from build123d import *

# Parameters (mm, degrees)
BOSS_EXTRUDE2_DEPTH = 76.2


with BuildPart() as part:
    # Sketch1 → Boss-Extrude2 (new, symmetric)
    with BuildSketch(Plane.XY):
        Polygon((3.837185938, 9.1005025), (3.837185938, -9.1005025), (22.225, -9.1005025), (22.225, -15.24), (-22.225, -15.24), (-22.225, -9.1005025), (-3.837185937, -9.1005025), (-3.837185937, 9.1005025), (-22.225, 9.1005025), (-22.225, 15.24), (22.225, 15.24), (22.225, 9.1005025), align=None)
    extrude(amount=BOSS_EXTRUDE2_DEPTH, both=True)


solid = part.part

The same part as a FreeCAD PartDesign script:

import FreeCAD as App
import Part
import Sketcher

V = App.Vector
Q = App.Units.Quantity

doc = App.newDocument("Part")
body = doc.addObject("PartDesign::Body", "Body")

# Sketch on XY plane
sketch1 = body.newObject("Sketcher::SketchObject", "Sketch")
sketch1.AttachmentSupport = (doc.getObject("XY_Plane"), [""])
sketch1.MapMode = "FlatFace"
sketch1.addGeometry([
    Part.LineSegment(V(3.837186, -9.100502, 0), V(3.837186, 9.100502, 0)),  # 0
    Part.LineSegment(V(3.837186, 9.100502, 0), V(22.225, 9.100502, 0)),  # 1
    Part.LineSegment(V(22.225, 9.100502, 0), V(22.225, 15.24, 0)),  # 2
    Part.LineSegment(V(22.225, 15.24, 0), V(-22.225, 15.24, 0)),  # 3
    Part.LineSegment(V(-22.225, 15.24, 0), V(-22.225, 9.100502, 0)),  # 4
    Part.LineSegment(V(-22.225, 9.100502, 0), V(-3.837186, 9.100502, 0)),  # 5
    Part.LineSegment(V(-3.837186, 9.100502, 0), V(-3.837186, -9.100502, 0)),  # 6
    Part.LineSegment(V(-3.837186, -9.100502, 0), V(-22.225, -9.100502, 0)),  # 7
    Part.LineSegment(V(-22.225, -9.100502, 0), V(-22.225, -15.24, 0)),  # 8
    Part.LineSegment(V(-22.225, -15.24, 0), V(22.225, -15.24, 0)),  # 9
    Part.LineSegment(V(22.225, -15.24, 0), V(22.225, -9.100502, 0)),  # 10
    Part.LineSegment(V(22.225, -9.100502, 0), V(3.837186, -9.100502, 0)),  # 11
], False)
sketch1.addConstraint([
    Sketcher.Constraint("Coincident", 0, 2, 1, 1),
    Sketcher.Constraint("Coincident", 1, 2, 2, 1),
    Sketcher.Constraint("Coincident", 2, 2, 3, 1),
    Sketcher.Constraint("Coincident", 3, 2, 4, 1),
    Sketcher.Constraint("Coincident", 4, 2, 5, 1),
    Sketcher.Constraint("Coincident", 5, 2, 6, 1),
    Sketcher.Constraint("Coincident", 6, 2, 7, 1),
    Sketcher.Constraint("Coincident", 7, 2, 8, 1),
    Sketcher.Constraint("Coincident", 8, 2, 9, 1),
    Sketcher.Constraint("Coincident", 9, 2, 10, 1),
    Sketcher.Constraint("Coincident", 10, 2, 11, 1),
    Sketcher.Constraint("Coincident", 11, 2, 0, 1),
    Sketcher.Constraint("Vertical", 0),
    Sketcher.Constraint("Horizontal", 1),
    Sketcher.Constraint("Vertical", 2),
    Sketcher.Constraint("Horizontal", 3),
    Sketcher.Constraint("Vertical", 4),
    Sketcher.Constraint("Horizontal", 5),
    Sketcher.Constraint("Vertical", 6),
    Sketcher.Constraint("Horizontal", 7),
    Sketcher.Constraint("Vertical", 8),
    Sketcher.Constraint("Horizontal", 9),
    Sketcher.Constraint("Vertical", 10),
    Sketcher.Constraint("Horizontal", 11),
    Sketcher.Constraint("Symmetric", 0, 2, 6, 2, -1, 1),
    Sketcher.Constraint("Symmetric", 2, 2, 8, 2, -1, 1),
    Sketcher.Constraint("Symmetric", 4, 2, 10, 2, -1, 1),
    Sketcher.Constraint("Symmetric", 1, 2, 4, 2, -2),
    Sketcher.Constraint("DistanceX", 3, 2, 3, 1, Q("1.75 in")),
    Sketcher.Constraint("DistanceY", -1, 1, 2, 2, Q("0.6 in")),
    Sketcher.Constraint("DistanceX", 1, 1, 1, 2, 18.387814),
    Sketcher.Constraint("DistanceY", 0, 1, 0, 2, 18.201005),
])
pad1 = body.newObject("PartDesign::Pad", "Pad")
pad1.Profile = sketch1
pad1.Length = Q("6 in")
pad1.Midplane = True

doc.recompute()
